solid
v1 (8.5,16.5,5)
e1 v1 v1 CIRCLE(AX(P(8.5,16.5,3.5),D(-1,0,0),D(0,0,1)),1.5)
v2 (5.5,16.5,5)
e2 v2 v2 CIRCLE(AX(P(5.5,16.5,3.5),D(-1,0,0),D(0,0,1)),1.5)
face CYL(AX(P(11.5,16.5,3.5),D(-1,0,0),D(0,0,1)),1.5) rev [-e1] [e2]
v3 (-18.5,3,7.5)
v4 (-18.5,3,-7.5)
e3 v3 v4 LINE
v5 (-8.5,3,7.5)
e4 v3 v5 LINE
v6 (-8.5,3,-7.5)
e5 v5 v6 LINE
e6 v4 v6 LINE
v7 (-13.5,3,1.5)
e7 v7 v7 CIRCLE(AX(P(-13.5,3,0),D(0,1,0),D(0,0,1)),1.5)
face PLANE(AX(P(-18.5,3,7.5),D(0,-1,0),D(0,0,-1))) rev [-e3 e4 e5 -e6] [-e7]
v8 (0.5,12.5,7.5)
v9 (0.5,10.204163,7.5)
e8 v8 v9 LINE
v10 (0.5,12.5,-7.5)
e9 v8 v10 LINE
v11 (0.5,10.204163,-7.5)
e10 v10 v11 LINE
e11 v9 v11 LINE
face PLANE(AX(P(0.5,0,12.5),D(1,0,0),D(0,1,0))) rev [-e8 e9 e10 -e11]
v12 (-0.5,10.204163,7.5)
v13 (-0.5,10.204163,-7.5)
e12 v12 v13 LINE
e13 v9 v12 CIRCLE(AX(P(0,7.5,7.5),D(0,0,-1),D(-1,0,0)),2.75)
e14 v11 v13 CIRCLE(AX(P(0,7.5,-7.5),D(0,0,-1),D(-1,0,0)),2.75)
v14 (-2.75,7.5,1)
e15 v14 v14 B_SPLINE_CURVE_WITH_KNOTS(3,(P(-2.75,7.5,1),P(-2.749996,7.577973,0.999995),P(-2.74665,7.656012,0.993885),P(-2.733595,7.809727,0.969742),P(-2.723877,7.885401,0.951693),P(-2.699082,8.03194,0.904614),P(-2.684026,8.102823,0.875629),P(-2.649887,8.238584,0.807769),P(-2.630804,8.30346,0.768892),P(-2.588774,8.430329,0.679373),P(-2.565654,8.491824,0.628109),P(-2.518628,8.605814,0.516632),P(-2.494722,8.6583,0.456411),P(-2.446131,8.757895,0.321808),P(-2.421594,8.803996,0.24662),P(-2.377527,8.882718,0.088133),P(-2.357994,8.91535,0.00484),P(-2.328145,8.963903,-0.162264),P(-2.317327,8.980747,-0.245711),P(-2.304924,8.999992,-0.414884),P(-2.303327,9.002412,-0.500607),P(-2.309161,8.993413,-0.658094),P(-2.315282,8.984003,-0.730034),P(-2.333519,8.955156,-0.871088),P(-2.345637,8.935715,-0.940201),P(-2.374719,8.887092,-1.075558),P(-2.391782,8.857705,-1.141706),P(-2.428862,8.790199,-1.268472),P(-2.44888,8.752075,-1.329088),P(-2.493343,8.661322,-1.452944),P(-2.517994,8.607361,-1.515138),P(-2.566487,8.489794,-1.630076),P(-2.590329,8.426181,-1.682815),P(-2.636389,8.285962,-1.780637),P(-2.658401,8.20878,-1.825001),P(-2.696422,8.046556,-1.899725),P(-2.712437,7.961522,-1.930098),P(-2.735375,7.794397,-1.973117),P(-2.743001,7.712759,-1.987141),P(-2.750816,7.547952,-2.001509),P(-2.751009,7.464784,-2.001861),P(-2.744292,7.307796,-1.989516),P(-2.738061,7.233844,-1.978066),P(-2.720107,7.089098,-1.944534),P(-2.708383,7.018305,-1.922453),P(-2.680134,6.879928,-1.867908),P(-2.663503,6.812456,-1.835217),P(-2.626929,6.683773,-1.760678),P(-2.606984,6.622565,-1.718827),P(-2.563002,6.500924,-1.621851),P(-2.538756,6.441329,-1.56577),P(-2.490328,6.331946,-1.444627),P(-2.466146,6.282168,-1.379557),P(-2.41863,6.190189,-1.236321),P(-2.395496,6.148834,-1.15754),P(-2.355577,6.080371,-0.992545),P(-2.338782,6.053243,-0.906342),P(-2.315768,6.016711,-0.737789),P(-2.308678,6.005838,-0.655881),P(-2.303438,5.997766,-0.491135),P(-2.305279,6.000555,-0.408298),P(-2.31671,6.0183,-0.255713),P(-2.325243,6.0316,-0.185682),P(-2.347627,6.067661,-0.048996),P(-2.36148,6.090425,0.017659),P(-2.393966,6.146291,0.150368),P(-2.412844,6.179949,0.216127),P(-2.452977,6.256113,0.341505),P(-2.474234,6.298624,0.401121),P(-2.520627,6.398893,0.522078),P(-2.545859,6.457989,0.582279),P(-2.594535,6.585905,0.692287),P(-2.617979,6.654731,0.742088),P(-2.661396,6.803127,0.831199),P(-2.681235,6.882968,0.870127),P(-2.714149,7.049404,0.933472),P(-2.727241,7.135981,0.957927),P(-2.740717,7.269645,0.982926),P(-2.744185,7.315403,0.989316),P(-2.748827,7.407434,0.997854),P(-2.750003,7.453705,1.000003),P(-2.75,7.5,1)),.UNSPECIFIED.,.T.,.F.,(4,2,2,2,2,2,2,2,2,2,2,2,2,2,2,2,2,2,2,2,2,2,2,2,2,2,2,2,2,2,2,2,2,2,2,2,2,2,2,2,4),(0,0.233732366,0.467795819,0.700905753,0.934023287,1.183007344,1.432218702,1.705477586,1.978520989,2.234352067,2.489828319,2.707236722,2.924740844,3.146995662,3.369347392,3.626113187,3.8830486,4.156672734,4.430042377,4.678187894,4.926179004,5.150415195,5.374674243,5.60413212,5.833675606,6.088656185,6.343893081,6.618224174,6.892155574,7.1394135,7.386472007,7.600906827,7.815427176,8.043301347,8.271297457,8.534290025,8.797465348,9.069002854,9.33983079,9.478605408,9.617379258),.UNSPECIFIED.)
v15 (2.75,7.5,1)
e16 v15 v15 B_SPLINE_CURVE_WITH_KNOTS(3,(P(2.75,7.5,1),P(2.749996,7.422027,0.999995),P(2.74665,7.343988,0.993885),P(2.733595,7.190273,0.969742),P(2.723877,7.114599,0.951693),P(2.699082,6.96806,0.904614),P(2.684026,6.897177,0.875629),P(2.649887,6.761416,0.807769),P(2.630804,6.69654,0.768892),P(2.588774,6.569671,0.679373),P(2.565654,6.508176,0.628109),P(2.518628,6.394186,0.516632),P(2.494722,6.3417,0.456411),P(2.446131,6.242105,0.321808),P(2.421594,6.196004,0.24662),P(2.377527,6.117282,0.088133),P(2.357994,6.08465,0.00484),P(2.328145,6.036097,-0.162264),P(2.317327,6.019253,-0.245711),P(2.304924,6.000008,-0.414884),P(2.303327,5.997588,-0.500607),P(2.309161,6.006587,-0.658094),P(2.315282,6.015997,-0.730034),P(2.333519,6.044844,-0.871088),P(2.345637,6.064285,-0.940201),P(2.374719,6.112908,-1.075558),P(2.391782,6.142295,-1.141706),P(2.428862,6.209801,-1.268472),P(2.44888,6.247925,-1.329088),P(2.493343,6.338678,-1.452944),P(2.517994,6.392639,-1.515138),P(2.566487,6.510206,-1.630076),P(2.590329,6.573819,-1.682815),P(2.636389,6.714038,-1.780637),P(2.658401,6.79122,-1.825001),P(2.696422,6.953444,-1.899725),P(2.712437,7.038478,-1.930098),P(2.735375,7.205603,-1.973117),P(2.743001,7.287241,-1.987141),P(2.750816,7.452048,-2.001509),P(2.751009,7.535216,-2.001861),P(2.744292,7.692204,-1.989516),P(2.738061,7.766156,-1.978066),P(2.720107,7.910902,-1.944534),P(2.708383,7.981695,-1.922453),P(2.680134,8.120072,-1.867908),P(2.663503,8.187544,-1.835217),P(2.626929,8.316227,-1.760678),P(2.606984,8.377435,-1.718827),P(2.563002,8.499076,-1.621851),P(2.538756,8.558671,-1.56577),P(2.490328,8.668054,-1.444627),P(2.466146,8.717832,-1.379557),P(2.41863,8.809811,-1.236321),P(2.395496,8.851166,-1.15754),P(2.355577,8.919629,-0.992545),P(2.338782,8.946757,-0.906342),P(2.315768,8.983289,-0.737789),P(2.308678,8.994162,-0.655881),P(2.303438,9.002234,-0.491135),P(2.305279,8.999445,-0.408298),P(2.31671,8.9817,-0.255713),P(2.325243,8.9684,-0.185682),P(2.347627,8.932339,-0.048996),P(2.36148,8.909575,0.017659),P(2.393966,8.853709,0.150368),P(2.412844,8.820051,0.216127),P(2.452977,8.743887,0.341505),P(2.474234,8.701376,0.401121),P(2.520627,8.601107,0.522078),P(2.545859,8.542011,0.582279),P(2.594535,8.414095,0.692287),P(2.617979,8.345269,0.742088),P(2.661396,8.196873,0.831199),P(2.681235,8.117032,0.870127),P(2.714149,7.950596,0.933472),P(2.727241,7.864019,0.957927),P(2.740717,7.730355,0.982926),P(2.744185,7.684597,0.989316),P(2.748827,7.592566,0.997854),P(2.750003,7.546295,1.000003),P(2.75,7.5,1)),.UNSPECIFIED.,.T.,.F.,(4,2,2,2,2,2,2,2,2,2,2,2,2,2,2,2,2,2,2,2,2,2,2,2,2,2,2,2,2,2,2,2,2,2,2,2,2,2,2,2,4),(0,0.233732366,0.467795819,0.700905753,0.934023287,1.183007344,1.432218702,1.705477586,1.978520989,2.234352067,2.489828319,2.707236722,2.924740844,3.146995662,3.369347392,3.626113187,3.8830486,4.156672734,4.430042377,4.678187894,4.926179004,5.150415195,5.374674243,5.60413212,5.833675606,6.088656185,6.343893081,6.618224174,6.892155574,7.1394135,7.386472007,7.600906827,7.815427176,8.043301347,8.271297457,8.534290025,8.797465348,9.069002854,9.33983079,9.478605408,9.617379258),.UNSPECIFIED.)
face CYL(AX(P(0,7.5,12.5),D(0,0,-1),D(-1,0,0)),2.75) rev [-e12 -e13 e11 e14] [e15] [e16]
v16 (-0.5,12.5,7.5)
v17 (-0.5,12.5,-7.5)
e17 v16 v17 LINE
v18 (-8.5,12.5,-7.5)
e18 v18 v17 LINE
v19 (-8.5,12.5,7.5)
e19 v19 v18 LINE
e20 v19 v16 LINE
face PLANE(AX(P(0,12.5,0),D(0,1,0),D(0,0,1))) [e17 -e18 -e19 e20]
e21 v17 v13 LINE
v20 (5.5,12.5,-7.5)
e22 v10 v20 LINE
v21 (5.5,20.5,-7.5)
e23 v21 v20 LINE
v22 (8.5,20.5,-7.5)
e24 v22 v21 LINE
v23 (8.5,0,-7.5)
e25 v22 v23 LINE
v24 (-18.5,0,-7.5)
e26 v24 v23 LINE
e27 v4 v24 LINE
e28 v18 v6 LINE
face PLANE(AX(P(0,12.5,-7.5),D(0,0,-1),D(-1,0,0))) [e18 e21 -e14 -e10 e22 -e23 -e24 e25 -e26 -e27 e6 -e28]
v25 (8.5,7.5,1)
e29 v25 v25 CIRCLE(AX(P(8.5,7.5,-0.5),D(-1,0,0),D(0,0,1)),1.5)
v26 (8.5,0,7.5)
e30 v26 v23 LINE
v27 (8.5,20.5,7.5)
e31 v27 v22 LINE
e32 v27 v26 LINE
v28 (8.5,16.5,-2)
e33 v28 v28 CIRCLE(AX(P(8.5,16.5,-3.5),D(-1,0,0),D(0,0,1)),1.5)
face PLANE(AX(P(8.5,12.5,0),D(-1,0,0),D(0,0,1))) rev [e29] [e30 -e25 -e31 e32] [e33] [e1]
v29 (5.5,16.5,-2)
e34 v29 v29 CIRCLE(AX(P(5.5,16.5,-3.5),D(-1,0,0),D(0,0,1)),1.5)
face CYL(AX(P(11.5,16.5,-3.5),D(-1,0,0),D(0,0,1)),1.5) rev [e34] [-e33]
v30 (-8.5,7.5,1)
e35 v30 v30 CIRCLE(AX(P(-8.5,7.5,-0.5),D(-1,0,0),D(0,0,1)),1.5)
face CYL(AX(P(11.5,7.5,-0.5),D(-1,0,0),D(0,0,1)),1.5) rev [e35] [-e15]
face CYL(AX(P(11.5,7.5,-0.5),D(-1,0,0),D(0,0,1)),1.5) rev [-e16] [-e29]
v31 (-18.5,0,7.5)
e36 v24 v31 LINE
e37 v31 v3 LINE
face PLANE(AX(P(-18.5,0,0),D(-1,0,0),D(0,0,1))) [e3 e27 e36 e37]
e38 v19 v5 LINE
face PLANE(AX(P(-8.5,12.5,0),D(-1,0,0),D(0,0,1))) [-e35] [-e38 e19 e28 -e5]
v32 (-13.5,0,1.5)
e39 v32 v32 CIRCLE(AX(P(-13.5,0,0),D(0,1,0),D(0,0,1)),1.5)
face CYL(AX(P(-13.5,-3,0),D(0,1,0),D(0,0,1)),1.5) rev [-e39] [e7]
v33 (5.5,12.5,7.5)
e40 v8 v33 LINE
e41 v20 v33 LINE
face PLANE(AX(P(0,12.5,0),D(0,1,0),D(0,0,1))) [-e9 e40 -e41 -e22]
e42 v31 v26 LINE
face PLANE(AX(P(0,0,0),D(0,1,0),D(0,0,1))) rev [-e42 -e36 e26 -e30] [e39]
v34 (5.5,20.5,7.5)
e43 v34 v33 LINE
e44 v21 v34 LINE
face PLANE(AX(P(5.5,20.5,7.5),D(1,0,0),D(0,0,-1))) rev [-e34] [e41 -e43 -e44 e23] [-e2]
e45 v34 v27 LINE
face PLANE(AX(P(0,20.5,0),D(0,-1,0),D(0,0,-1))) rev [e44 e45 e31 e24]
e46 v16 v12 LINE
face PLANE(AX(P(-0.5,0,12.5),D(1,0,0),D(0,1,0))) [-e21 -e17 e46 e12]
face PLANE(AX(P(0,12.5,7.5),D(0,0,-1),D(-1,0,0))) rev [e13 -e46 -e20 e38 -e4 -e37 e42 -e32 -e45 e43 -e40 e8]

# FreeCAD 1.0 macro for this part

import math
import FreeCAD as App
import Part
import Sketcher

V = App.Vector
Q = App.Units.Quantity


def add_polygon(sketch, points):
    """Adds a closed chain of lines whose ends are joined by coincident constraints."""
    first, n = sketch.GeometryCount, len(points)
    for a, b in zip(points, points[1:] + points[:1]):
        sketch.addGeometry(Part.LineSegment(App.Vector(*a, 0), App.Vector(*b, 0)), False)
    for i in range(n):
        sketch.addConstraint(Sketcher.Constraint("Coincident", first + i, 2, first + (i + 1) % n, 1))

doc = App.newDocument("Part")
body = doc.addObject("PartDesign::Body", "Body")

sketch1 = body.newObject("Sketcher::SketchObject", "Sketch")
sketch1.AttachmentSupport = (doc.getObject("XZ_Plane"), [""])
sketch1.MapMode = "FlatFace"
add_polygon(sketch1, [(-8, -8), (-8, 8), (8, 8), (8, -8)])
sketch1.addConstraint([
    Sketcher.Constraint("Vertical", 0),
    Sketcher.Constraint("Horizontal", 1),
    Sketcher.Constraint("Vertical", 2),
    Sketcher.Constraint("Horizontal", 3),
    Sketcher.Constraint("Symmetric", 0, 2, 2, 2, -1, 1),
    Sketcher.Constraint("DistanceX", 1, 1, 1, 2, Q("17 mm")),
    Sketcher.Constraint("DistanceY", 0, 1, 0, 2, Q("15 mm")),
])
pad1 = body.newObject("PartDesign::Pad", "Pad")
pad1.Profile = sketch1
pad1.Length = 12.5
pad1.Reversed = True

sketch2 = body.newObject("Sketcher::SketchObject", "Sketch001")
sketch2.AttachmentSupport = (doc.getObject("XY_Plane"), [""])
sketch2.MapMode = "FlatFace"
sketch2.AttachmentOffset = App.Placement(V(0, 0, -7.5), App.Rotation())
sketch2.addGeometry([
    Part.LineSegment(V(-0.5, 10.2, 0), V(-0.5, 12.5, 0)),
    Part.LineSegment(V(-0.5, 12.5, 0), V(0.5, 12.5, 0)),
    Part.LineSegment(V(0.5, 12.5, 0), V(0.5, 10.2, 0)),
    Part.ArcOfCircle(Part.Circle(V(0, 7.5, 0), V(0, 0, 1), 2.8), math.radians(100), math.radians(440)),
], False)
sketch2.addConstraint([
    Sketcher.Constraint("Coincident", 0, 2, 1, 1),
    Sketcher.Constraint("Coincident", 1, 2, 2, 1),
    Sketcher.Constraint("Coincident", 2, 2, 3, 2),
    Sketcher.Constraint("Coincident", 3, 1, 0, 1),
    Sketcher.Constraint("Vertical", 0),
    Sketcher.Constraint("Horizontal", 1),
    Sketcher.Constraint("Vertical", 2),
    Sketcher.Constraint("Symmetric", 2, 2, 3, 1, -2),
    Sketcher.Constraint("DistanceX", 1, 1, 1, 2, Q("1 mm")),
    Sketcher.Constraint("Radius", 3, Q("2.75 mm")),
    Sketcher.Constraint("DistanceY", 3, 3, 0, 2, Q("5 mm")),
    Sketcher.Constraint("DistanceY", -1, 1, 3, 3, Q("7.5 mm")),
])
pocket1 = body.newObject("PartDesign::Pocket", "Pocket")
pocket1.Profile = sketch2
pocket1.Length = 20
pocket1.Reversed = True

sketch3 = body.newObject("Sketcher::SketchObject", "Sketch002")
sketch3.AttachmentSupport = (doc.getObject("YZ_Plane"), [""])
sketch3.MapMode = "FlatFace"
sketch3.AttachmentOffset = App.Placement(V(0, 0, -8.5), App.Rotation())
sketch3.addGeometry(Part.Circle(V(7.5, -0.5, 0), V(0, 0, 1), 1.5), False)
sketch3.addConstraint([
    Sketcher.Constraint("Diameter", 0, Q("3 mm")),
    Sketcher.Constraint("DistanceX", -1, 1, 0, 3, Q("7.5 mm")),
    Sketcher.Constraint("DistanceY", 0, 3, -1, 1, Q("0.5 mm")),
])
pocket2 = body.newObject("PartDesign::Pocket", "Pocket001")
pocket2.Profile = sketch3
pocket2.Length = 20
pocket2.Reversed = True

sketch4 = body.newObject("Sketcher::SketchObject", "Sketch003")
sketch4.AttachmentSupport = (doc.getObject("YZ_Plane"), [""])
sketch4.MapMode = "FlatFace"
sketch4.AttachmentOffset = App.Placement(V(0, 0, -8.5), App.Rotation())
add_polygon(sketch4, [(3, -7.5), (0, -7.5), (0, 7.5), (3, 7.5)])
sketch4.addConstraint([
    Sketcher.Constraint("Horizontal", 0),
    Sketcher.Constraint("Vertical", 1),
    Sketcher.Constraint("Horizontal", 2),
    Sketcher.Constraint("Vertical", 3),
    Sketcher.Constraint("Symmetric", 0, 2, 1, 2, -1, 1),
    Sketcher.Constraint("DistanceX", 0, 2, 0, 1, Q("3 mm")),
    Sketcher.Constraint("DistanceY", 1, 1, 1, 2, Q("15 mm")),
])
pad2 = body.newObject("PartDesign::Pad", "Pad001")
pad2.Profile = sketch4
pad2.Length = 10
pad2.Reversed = True

sketch5 = body.newObject("Sketcher::SketchObject", "Sketch004")
sketch5.AttachmentSupport = (doc.getObject("XZ_Plane"), [""])
sketch5.MapMode = "FlatFace"
sketch5.AttachmentOffset = App.Placement(V(0, 0, -3), App.Rotation())
sketch5.addGeometry(Part.Circle(V(-13.5, 0, 0), V(0, 0, 1), 1.5), False)
sketch5.addConstraint([
    Sketcher.Constraint("PointOnObject", 0, 3, -1),
    Sketcher.Constraint("Diameter", 0, Q("3 mm")),
    Sketcher.Constraint("DistanceX", 0, 3, -1, 1, Q("13.5 mm")),
])
pocket3 = body.newObject("PartDesign::Pocket", "Pocket002")
pocket3.Profile = sketch5
pocket3.Length = 6
pocket3.Reversed = True

sketch6 = body.newObject("Sketcher::SketchObject", "Sketch005")
sketch6.AttachmentSupport = (doc.getObject("XZ_Plane"), [""])
sketch6.MapMode = "FlatFace"
sketch6.AttachmentOffset = App.Placement(V(0, 0, -12.5), App.Rotation())
add_polygon(sketch6, [(5.5, -7.5), (5.5, 7.5), (8.5, 7.5), (8.5, -7.5)])
sketch6.addConstraint([
    Sketcher.Constraint("Vertical", 0),
    Sketcher.Constraint("Horizontal", 1),
    Sketcher.Constraint("Vertical", 2),
    Sketcher.Constraint("Horizontal", 3),
    Sketcher.Constraint("DistanceX", 1, 1, 1, 2, Q("3 mm")),
    Sketcher.Constraint("DistanceY", 0, 1, 0, 2, Q("15 mm")),
    Sketcher.Constraint("DistanceX", -1, 1, 0, 2, Q("5.5 mm")),
    Sketcher.Constraint("DistanceY", -1, 1, 0, 2, Q("7.5 mm")),
])
pad3 = body.newObject("PartDesign::Pad", "Pad002")
pad3.Profile = sketch6
pad3.Length = 8
pad3.Reversed = True

sketch7 = body.newObject("Sketcher::SketchObject", "Sketch006")
sketch7.AttachmentSupport = (doc.getObject("YZ_Plane"), [""])
sketch7.MapMode = "FlatFace"
sketch7.AttachmentOffset = App.Placement(V(0, 0, 5.5), App.Rotation())
sketch7.addGeometry([
    Part.Circle(V(16.5, 3.5, 0), V(0, 0, 1), 1.5),
    Part.Circle(V(16.5, -3.5, 0), V(0, 0, 1), 1.5),
], False)
sketch7.addConstraint([
    Sketcher.Constraint("Equal", 0, 1),
    Sketcher.Constraint("Symmetric", 0, 3, 1, 3, -1),
    Sketcher.Constraint("Diameter", 0, Q("3 mm")),
    Sketcher.Constraint("DistanceY", 1, 3, 0, 3, Q("7 mm")),
    Sketcher.Constraint("DistanceX", -1, 1, 0, 3, Q("16.5 mm")),
])
pocket4 = body.newObject("PartDesign::Pocket", "Pocket003")
pocket4.Profile = sketch7
pocket4.Length = 6
pocket4.Reversed = True

doc.recompute()
